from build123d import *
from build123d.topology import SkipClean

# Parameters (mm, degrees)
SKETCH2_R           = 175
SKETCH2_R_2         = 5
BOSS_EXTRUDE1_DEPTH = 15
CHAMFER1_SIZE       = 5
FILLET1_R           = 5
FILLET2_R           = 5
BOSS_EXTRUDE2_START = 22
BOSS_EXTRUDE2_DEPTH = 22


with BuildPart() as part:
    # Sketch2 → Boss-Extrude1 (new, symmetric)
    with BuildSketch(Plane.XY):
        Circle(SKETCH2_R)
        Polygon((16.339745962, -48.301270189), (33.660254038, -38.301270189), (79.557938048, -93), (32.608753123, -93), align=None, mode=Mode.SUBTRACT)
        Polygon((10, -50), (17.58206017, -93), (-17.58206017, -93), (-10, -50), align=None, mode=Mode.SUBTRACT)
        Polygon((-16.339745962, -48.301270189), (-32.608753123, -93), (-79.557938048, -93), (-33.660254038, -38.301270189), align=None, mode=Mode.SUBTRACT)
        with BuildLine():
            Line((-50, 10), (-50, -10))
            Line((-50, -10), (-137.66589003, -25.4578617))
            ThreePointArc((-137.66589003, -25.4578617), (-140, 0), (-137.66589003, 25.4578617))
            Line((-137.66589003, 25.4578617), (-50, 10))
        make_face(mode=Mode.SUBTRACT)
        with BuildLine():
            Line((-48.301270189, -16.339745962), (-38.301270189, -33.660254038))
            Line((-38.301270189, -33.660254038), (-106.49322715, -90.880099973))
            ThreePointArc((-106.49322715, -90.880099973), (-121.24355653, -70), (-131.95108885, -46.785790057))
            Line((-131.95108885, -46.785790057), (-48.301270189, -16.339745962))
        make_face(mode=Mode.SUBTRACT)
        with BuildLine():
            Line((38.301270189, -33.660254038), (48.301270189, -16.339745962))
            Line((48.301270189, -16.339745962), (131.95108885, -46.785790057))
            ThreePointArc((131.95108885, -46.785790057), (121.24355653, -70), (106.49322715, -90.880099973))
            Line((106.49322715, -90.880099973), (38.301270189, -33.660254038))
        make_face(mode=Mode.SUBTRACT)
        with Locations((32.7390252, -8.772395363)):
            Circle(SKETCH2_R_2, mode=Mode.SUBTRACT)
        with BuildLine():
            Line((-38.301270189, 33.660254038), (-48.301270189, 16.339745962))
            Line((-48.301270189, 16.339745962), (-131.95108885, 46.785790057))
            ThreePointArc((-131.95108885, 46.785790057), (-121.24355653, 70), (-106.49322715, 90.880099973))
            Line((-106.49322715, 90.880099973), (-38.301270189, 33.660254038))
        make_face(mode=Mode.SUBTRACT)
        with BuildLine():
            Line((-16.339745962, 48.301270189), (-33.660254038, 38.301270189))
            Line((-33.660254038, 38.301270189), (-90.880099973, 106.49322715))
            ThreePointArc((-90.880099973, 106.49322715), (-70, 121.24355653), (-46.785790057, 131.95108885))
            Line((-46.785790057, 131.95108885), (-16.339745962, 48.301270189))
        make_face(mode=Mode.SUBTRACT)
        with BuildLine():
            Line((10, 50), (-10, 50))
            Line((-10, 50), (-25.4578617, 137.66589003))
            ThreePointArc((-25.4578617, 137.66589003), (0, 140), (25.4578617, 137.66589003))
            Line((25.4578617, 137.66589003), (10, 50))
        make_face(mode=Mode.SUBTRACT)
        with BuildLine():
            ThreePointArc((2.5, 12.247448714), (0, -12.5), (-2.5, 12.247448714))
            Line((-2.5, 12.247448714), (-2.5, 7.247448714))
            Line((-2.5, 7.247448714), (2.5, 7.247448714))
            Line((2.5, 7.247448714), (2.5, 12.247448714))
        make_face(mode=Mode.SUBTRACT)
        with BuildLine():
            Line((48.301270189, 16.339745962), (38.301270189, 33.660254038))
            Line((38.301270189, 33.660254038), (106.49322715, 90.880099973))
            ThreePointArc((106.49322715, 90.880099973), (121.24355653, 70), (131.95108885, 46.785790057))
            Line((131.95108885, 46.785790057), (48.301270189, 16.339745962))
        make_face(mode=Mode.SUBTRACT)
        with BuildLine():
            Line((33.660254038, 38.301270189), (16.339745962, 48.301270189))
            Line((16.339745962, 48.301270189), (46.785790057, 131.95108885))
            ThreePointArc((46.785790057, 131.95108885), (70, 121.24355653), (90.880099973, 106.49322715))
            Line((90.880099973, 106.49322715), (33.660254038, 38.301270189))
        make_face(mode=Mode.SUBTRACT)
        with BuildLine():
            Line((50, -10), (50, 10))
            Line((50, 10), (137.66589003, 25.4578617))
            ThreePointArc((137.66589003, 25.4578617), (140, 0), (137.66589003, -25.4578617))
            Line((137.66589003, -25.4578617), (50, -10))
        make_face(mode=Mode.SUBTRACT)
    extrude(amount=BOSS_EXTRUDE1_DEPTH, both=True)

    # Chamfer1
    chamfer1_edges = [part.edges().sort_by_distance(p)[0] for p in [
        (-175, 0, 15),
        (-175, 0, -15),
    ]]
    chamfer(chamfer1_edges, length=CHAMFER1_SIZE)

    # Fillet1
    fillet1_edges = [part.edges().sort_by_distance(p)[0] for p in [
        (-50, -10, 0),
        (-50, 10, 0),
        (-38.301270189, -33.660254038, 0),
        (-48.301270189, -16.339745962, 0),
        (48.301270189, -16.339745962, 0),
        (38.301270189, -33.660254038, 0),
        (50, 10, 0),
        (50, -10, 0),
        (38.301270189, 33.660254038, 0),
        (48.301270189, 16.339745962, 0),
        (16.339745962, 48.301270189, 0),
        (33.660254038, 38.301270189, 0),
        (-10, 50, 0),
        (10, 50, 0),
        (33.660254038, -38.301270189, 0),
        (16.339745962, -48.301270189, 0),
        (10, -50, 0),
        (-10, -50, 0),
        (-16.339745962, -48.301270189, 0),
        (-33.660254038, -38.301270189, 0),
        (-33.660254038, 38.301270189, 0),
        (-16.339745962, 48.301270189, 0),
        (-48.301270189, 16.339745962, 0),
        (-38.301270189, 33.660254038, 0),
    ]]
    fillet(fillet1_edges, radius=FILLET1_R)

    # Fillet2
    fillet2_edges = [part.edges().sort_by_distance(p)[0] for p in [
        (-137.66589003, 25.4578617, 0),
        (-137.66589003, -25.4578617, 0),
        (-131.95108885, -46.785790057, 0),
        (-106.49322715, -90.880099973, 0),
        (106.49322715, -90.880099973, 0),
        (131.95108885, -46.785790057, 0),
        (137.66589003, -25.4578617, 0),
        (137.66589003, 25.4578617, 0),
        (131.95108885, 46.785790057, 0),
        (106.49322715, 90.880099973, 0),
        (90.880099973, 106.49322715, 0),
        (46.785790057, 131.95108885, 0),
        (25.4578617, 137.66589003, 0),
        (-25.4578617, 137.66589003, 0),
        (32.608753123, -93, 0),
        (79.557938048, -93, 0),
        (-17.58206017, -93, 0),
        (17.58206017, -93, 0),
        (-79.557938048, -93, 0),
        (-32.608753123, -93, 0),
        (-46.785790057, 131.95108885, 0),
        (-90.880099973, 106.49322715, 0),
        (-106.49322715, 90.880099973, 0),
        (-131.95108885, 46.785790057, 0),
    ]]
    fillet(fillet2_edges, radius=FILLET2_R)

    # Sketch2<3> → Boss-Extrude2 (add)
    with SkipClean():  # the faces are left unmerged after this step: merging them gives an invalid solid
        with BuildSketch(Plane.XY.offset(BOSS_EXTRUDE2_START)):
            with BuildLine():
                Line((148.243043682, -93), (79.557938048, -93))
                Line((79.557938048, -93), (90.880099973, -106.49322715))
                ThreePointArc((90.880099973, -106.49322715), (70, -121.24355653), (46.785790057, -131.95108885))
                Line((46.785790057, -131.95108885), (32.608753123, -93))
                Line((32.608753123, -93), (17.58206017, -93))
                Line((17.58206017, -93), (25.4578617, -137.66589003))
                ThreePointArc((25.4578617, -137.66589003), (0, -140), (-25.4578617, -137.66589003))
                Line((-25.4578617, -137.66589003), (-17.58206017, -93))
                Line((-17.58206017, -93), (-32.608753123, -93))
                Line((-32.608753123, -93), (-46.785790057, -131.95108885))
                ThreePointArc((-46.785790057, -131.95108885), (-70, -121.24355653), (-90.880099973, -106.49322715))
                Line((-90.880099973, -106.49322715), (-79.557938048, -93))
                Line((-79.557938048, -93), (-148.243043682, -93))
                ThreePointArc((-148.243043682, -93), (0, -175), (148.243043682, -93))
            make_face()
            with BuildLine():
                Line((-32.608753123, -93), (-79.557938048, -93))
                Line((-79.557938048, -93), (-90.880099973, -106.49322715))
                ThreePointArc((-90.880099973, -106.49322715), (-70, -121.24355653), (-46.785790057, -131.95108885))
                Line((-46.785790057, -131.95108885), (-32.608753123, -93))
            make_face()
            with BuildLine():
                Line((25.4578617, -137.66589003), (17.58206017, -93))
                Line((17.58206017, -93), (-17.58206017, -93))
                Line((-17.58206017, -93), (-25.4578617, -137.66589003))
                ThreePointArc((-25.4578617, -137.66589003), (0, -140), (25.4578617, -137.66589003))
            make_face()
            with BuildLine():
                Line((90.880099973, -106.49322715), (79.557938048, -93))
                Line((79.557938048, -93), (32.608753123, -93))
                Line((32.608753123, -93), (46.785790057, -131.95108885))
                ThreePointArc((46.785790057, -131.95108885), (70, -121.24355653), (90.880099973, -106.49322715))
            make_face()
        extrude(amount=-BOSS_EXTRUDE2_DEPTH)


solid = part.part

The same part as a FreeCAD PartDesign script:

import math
import FreeCAD as App
import Part
import Sketcher
from FreeCAD import Vector
Q = App.Units.Quantity


def edges_at(feature, points):
    """Names of the edges that pass closest to the given points."""
    edges = feature.Shape.Edges
    near = lambda p: min(range(len(edges)), key=lambda i: edges[i].distToShape(Part.Vertex(*p))[0])
    return sorted({f"Edge{near(p) + 1}" for p in points})

doc = App.newDocument("Part")
body = doc.addObject("PartDesign::Body", "Body")

# Sketch on XY plane
sketch1 = body.newObject("Sketcher::SketchObject", "Sketch")
sketch1.AttachmentSupport = (doc.getObject("XY_Plane"), [""])
sketch1.MapMode = "FlatFace"
sketch1.addGeometry([
    Part.Circle(Vector(0, 0, 0), Vector(0, 0, 1), 175),  # 0
    Part.LineSegment(Vector(-132, -47, 0), Vector(-48, -16, 0)),  # 1
    Part.LineSegment(Vector(-48, -16, 0), Vector(-38, -34, 0)),  # 2
    Part.LineSegment(Vector(-38, -34, 0), Vector(-106, -91, 0)),  # 3
    Part.ArcOfCircle(Part.Circle(Vector(0, 0, 0), Vector(0, 0, 1), 140), math.radians(-160), math.radians(-140)),  # 4
    Part.LineSegment(Vector(-34, -38, 0), Vector(-16, -48, 0)),  # 5
    Part.LineSegment(Vector(-16, -48, 0), Vector(-33, -93, 0)),  # 6
    Part.LineSegment(Vector(-33, -93, 0), Vector(-80, -93, 0)),  # 7
    Part.LineSegment(Vector(-80, -93, 0), Vector(-34, -38, 0)),  # 8
    Part.LineSegment(Vector(-10, -50, 0), Vector(10, -50, 0)),  # 9
    Part.LineSegment(Vector(10, -50, 0), Vector(18, -93, 0)),  # 10
    Part.LineSegment(Vector(18, -93, 0), Vector(-18, -93, 0)),  # 11
    Part.LineSegment(Vector(-18, -93, 0), Vector(-10, -50, 0)),  # 12
    Part.LineSegment(Vector(-138, 25, 0), Vector(-50, 10, 0)),  # 13
    Part.LineSegment(Vector(-50, 10, 0), Vector(-50, -10, 0)),  # 14
    Part.LineSegment(Vector(-50, -10, 0), Vector(-138, -25, 0)),  # 15
    Part.ArcOfCircle(Part.Circle(Vector(0, 0, 0), Vector(0, 0, 1), 140), math.radians(170), math.radians(190)),  # 16
    Part.LineSegment(Vector(2, 7, 0), Vector(2, 12, 0)),  # 17
    Part.ArcOfCircle(Part.Circle(Vector(0, 0, 0), Vector(0, 0, 1), 12), math.radians(102), math.radians(438)),  # 18
    Part.LineSegment(Vector(-2, 12, 0), Vector(-2, 7, 0)),  # 19
    Part.LineSegment(Vector(-2, 7, 0), Vector(2, 7, 0)),  # 20
    Part.LineSegment(Vector(33, -93, 0), Vector(16, -48, 0)),  # 21
    Part.LineSegment(Vector(16, -48, 0), Vector(34, -38, 0)),  # 22
    Part.LineSegment(Vector(34, -38, 0), Vector(80, -93, 0)),  # 23
    Part.LineSegment(Vector(80, -93, 0), Vector(33, -93, 0)),  # 24
    Part.LineSegment(Vector(106, -91, 0), Vector(38, -34, 0)),  # 25
    Part.LineSegment(Vector(38, -34, 0), Vector(48, -16, 0)),  # 26
    Part.LineSegment(Vector(48, -16, 0), Vector(132, -47, 0)),  # 27
    Part.ArcOfCircle(Part.Circle(Vector(0, 0, 0), Vector(0, 0, 1), 140), math.radians(-40), math.radians(-20)),  # 28
    Part.Circle(Vector(33, -9, 0), Vector(0, 0, 1), 5),  # 29
    Part.LineSegment(Vector(138, -25, 0), Vector(50, -10, 0)),  # 30
    Part.LineSegment(Vector(50, -10, 0), Vector(50, 10, 0)),  # 31
    Part.LineSegment(Vector(50, 10, 0), Vector(138, 25, 0)),  # 32
    Part.ArcOfCircle(Part.Circle(Vector(0, 0, 0), Vector(0, 0, 1), 140), math.radians(-10), math.radians(10)),  # 33
    Part.LineSegment(Vector(-106, 91, 0), Vector(-38, 34, 0)),  # 34
    Part.LineSegment(Vector(-38, 34, 0), Vector(-48, 16, 0)),  # 35
    Part.LineSegment(Vector(-48, 16, 0), Vector(-132, 47, 0)),  # 36
    Part.ArcOfCircle(Part.Circle(Vector(0, 0, 0), Vector(0, 0, 1), 140), math.radians(140), math.radians(160)),  # 37
    Part.LineSegment(Vector(-47, 132, 0), Vector(-16, 48, 0)),  # 38
    Part.LineSegment(Vector(-16, 48, 0), Vector(-34, 38, 0)),  # 39
    Part.LineSegment(Vector(-34, 38, 0), Vector(-91, 106, 0)),  # 40
    Part.ArcOfCircle(Part.Circle(Vector(0, 0, 0), Vector(0, 0, 1), 140), math.radians(110), math.radians(130)),  # 41
    Part.LineSegment(Vector(25, 138, 0), Vector(10, 50, 0)),  # 42
    Part.LineSegment(Vector(10, 50, 0), Vector(-10, 50, 0)),  # 43
    Part.LineSegment(Vector(-10, 50, 0), Vector(-25, 138, 0)),  # 44
    Part.ArcOfCircle(Part.Circle(Vector(0, 0, 0), Vector(0, 0, 1), 140), math.radians(80), math.radians(100)),  # 45
    Part.LineSegment(Vector(132, 47, 0), Vector(48, 16, 0)),  # 46
    Part.LineSegment(Vector(48, 16, 0), Vector(38, 34, 0)),  # 47
    Part.LineSegment(Vector(38, 34, 0), Vector(106, 91, 0)),  # 48
    Part.ArcOfCircle(Part.Circle(Vector(0, 0, 0), Vector(0, 0, 1), 140), math.radians(20), math.radians(40)),  # 49
    Part.LineSegment(Vector(91, 106, 0), Vector(34, 38, 0)),  # 50
    Part.LineSegment(Vector(34, 38, 0), Vector(16, 48, 0)),  # 51
    Part.LineSegment(Vector(16, 48, 0), Vector(47, 132, 0)),  # 52
    Part.ArcOfCircle(Part.Circle(Vector(0, 0, 0), Vector(0, 0, 1), 140), math.radians(50), math.radians(70)),  # 53
], False)
sketch1.addConstraint([
    Sketcher.Constraint("Coincident", 1, 2, 2, 1),
    Sketcher.Constraint("Coincident", 2, 2, 3, 1),
    Sketcher.Constraint("Coincident", 3, 2, 4, 2),
    Sketcher.Constraint("Coincident", 4, 1, 1, 1),
    Sketcher.Constraint("Coincident", 5, 2, 6, 1),
    Sketcher.Constraint("Coincident", 6, 2, 7, 1),
    Sketcher.Constraint("Coincident", 7, 2, 8, 1),
    Sketcher.Constraint("Coincident", 8, 2, 5, 1),
    Sketcher.Constraint("Coincident", 9, 2, 10, 1),
    Sketcher.Constraint("Coincident", 10, 2, 11, 1),
    Sketcher.Constraint("Coincident", 11, 2, 12, 1),
    Sketcher.Constraint("Coincident", 12, 2, 9, 1),
    Sketcher.Constraint("Coincident", 13, 2, 14, 1),
    Sketcher.Constraint("Coincident", 14, 2, 15, 1),
    Sketcher.Constraint("Coincident", 15, 2, 16, 2),
    Sketcher.Constraint("Coincident", 16, 1, 13, 1),
    Sketcher.Constraint("Coincident", 17, 2, 18, 2),
    Sketcher.Constraint("Coincident", 18, 1, 19, 1),
    Sketcher.Constraint("Coincident", 19, 2, 20, 1),
    Sketcher.Constraint("Coincident", 20, 2, 17, 1),
    Sketcher.Constraint("Coincident", 21, 2, 22, 1),
    Sketcher.Constraint("Coincident", 22, 2, 23, 1),
    Sketcher.Constraint("Coincident", 23, 2, 24, 1),
    Sketcher.Constraint("Coincident", 24, 2, 21, 1),
    Sketcher.Constraint("Coincident", 25, 2, 26, 1),
    Sketcher.Constraint("Coincident", 26, 2, 27, 1),
    Sketcher.Constraint("Coincident", 27, 2, 28, 2),
    Sketcher.Constraint("Coincident", 28, 1, 25, 1),
    Sketcher.Constraint("Coincident", 30, 2, 31, 1),
    Sketcher.Constraint("Coincident", 31, 2, 32, 1),
    Sketcher.Constraint("Coincident", 32, 2, 33, 2),
    Sketcher.Constraint("Coincident", 33, 1, 30, 1),
    Sketcher.Constraint("Coincident", 34, 2, 35, 1),
    Sketcher.Constraint("Coincident", 35, 2, 36, 1),
    Sketcher.Constraint("Coincident", 36, 2, 37, 2),
    Sketcher.Constraint("Coincident", 37, 1, 34, 1),
    Sketcher.Constraint("Coincident", 38, 2, 39, 1),
    Sketcher.Constraint("Coincident", 39, 2, 40, 1),
    Sketcher.Constraint("Coincident", 40, 2, 41, 2),
    Sketcher.Constraint("Coincident", 41, 1, 38, 1),
    Sketcher.Constraint("Coincident", 42, 2, 43, 1),
    Sketcher.Constraint("Coincident", 43, 2, 44, 1),
    Sketcher.Constraint("Coincident", 44, 2, 45, 2),
    Sketcher.Constraint("Coincident", 45, 1, 42, 1),
    Sketcher.Constraint("Coincident", 46, 2, 47, 1),
    Sketcher.Constraint("Coincident", 47, 2, 48, 1),
    Sketcher.Constraint("Coincident", 48, 2, 49, 2),
    Sketcher.Constraint("Coincident", 49, 1, 46, 1),
    Sketcher.Constraint("Coincident", 50, 2, 51, 1),
    Sketcher.Constraint("Coincident", 51, 2, 52, 1),
    Sketcher.Constraint("Coincident", 52, 2, 53, 2),
    Sketcher.Constraint("Coincident", 53, 1, 50, 1),
    Sketcher.Constraint("Horizontal", 7),
    Sketcher.Constraint("Horizontal", 9),
    Sketcher.Constraint("Horizontal", 11),
    Sketcher.Constraint("Vertical", 14),
    Sketcher.Constraint("Vertical", 17),
    Sketcher.Constraint("Vertical", 19),
    Sketcher.Constraint("Horizontal", 20),
    Sketcher.Constraint("Horizontal", 24),
    Sketcher.Constraint("Vertical", 31),
    Sketcher.Constraint("Horizontal", 43),
    Sketcher.Constraint("Coincident", 0, 3, -1, 1),
    Sketcher.Constraint("Coincident", 4, 3, -1, 1),
    Sketcher.Constraint("Coincident", 16, 3, -1, 1),
    Sketcher.Constraint("Coincident", 18, 3, -1, 1),
    Sketcher.Constraint("Coincident", 28, 3, -1, 1),
    Sketcher.Constraint("Coincident", 33, 3, -1, 1),
    Sketcher.Constraint("Coincident", 37, 3, -1, 1),
    Sketcher.Constraint("Coincident", 41, 3, -1, 1),
    Sketcher.Constraint("Coincident", 45, 3, -1, 1),
    Sketcher.Constraint("Coincident", 49, 3, -1, 1),
    Sketcher.Constraint("Coincident", 53, 3, -1, 1),
    Sketcher.Constraint("Equal", 4, 16),
    Sketcher.Constraint("Equal", 16, 28),
    Sketcher.Constraint("Equal", 28, 33),
    Sketcher.Constraint("Equal", 33, 37),
    Sketcher.Constraint("Equal", 37, 41),
    Sketcher.Constraint("Equal", 41, 45),
    Sketcher.Constraint("Equal", 45, 49),
    Sketcher.Constraint("Equal", 49, 53),
    Sketcher.Constraint("Symmetric", 13, 2, 30, 2, -1, 1),
    Sketcher.Constraint("Symmetric", 25, 2, 34, 2, -1, 1),
    Sketcher.Constraint("Symmetric", 26, 2, 35, 2, -1, 1),
    Sketcher.Constraint("Symmetric", 21, 2, 38, 2, -1, 1),
    Sketcher.Constraint("Symmetric", 22, 2, 39, 2, -1, 1),
    Sketcher.Constraint("Symmetric", 12, 2, 42, 2, -1, 1),
    Sketcher.Constraint("Symmetric", 1, 2, 46, 2, -1, 1),
    Sketcher.Constraint("Symmetric", 2, 2, 47, 2, -1, 1),
    Sketcher.Constraint("Symmetric", 8, 2, 50, 2, -1, 1),
    Sketcher.Constraint("Symmetric", 5, 2, 51, 2, -1, 1),
    Sketcher.Constraint("Symmetric", 5, 2, 21, 2, -2),
    Sketcher.Constraint("Symmetric", 8, 2, 22, 2, -2),
    Sketcher.Constraint("Symmetric", 7, 2, 23, 2, -2),
    Sketcher.Constraint("Symmetric", 2, 2, 25, 2, -2),
    Sketcher.Constraint("Symmetric", 1, 2, 26, 2, -2),
    Sketcher.Constraint("Perpendicular", 12, 13),
    Sketcher.Constraint("Perpendicular", 10, 15),
    Sketcher.Constraint("Perpendicular", 1, 21),
    Sketcher.Constraint("Perpendicular", 2, 22),
    Sketcher.Constraint("Perpendicular", 3, 23),
    Sketcher.Constraint("Perpendicular", 8, 25),
    Sketcher.Constraint("Perpendicular", 6, 27),
    Sketcher.Constraint("Parallel", 13, 30),
    Sketcher.Constraint("Parallel", 15, 32),
    Sketcher.Constraint("Parallel", 25, 34),
    Sketcher.Constraint("Parallel", 27, 36),
    Sketcher.Constraint("Parallel", 21, 38),
    Sketcher.Constraint("Parallel", 23, 40),
    Sketcher.Constraint("Perpendicular", 30, 42),
    Sketcher.Constraint("Perpendicular", 32, 44),
    Sketcher.Constraint("Perpendicular", 38, 46),
    Sketcher.Constraint("Perpendicular", 40, 48),
    Sketcher.Constraint("Perpendicular", 34, 50),
    Sketcher.Constraint("Perpendicular", 36, 52),
    Sketcher.Constraint("Horizontal", 7, 2, 10, 2),
    Sketcher.Constraint("Horizontal", 17, 2, 18, 1),
    Sketcher.Constraint("Horizontal", 4, 1, 27, 2),
    Sketcher.Constraint("Horizontal", 14, 2, 30, 2),
    Sketcher.Constraint("Horizontal", 13, 2, 31, 2),
    Sketcher.Constraint("Horizontal", 16, 1, 32, 2),
    Sketcher.Constraint("Horizontal", 44, 2, 45, 1),
    Sketcher.Constraint("Vertical", 9, 2, 42, 2),
    Sketcher.Constraint("Equal", 43, 14),
    Sketcher.Constraint("Equal", 20, 17),
    Sketcher.Constraint("Equal", 1, 3),
    Sketcher.Constraint("Equal", 2, 5),
    Sketcher.Constraint("Equal", 3, 13),
    Sketcher.Constraint("Equal", 36, 38),
    Sketcher.Constraint("Equal", 38, 40),
    Sketcher.Constraint("Equal", 40, 42),
    Sketcher.Constraint("Diameter", 0, 350.0),
    Sketcher.Constraint("Diameter", 29, 10.0),
    Sketcher.Constraint("Radius", 4, 140.0),
    Sketcher.Constraint("Radius", 18, 12.5),
    Sketcher.Constraint("DistanceX", 9, 1, 9, 2, 20.0),
    Sketcher.Constraint("DistanceX", 20, 1, 20, 2, 5.0),
    Sketcher.Constraint("Angle", 1, Q("20 deg")),
    Sketcher.Constraint("Angle", 2, Q("-60 deg")),
    Sketcher.Constraint("Angle", 3, Q("-140 deg")),
    Sketcher.Constraint("Angle", 10, Q("-80 deg")),
    Sketcher.Constraint("Distance", 2, 20.0),
    Sketcher.Constraint("DistanceY", 6, 2, -1, 1, 93.0),
    Sketcher.Constraint("DistanceY", 9, 2, -1, 1, 50.0),
    Sketcher.Constraint("DistanceX", -1, 1, 29, 3, 32.739025),
    Sketcher.Constraint("DistanceY", 29, 3, -1, 1, 8.772395),
])
pad1 = body.newObject("PartDesign::Pad", "Pad")
pad1.Profile = sketch1
pad1.Length = 30
pad1.Midplane = True
doc.recompute()

chamfer = body.newObject("PartDesign::Chamfer", "Chamfer")
chamfer.Base = (pad1, edges_at(pad1, [(-175, 0, 15), (-175, 0, -15)]))
chamfer.Size = 5
doc.recompute()

fillet = body.newObject("PartDesign::Fillet", "Fillet")
fillet.Base = (chamfer, edges_at(chamfer, [
    (-50, -10, 0),
    (-50, 10, 0),
    (-38.301, -33.66, 0),
    (-48.301, -16.34, 0),
    (48.301, -16.34, 0),
    (38.301, -33.66, 0),
    (50, 10, 0),
    (50, -10, 0),
    (38.301, 33.66, 0),
    (48.301, 16.34, 0),
    (16.34, 48.301, 0),
    (33.66, 38.301, 0),
    (-10, 50, 0),
    (10, 50, 0),
    (33.66, -38.301, 0),
    (16.34, -48.301, 0),
    (10, -50, 0),
    (-10, -50, 0),
    (-16.34, -48.301, 0),
    (-33.66, -38.301, 0),
    (-33.66, 38.301, 0),
    (-16.34, 48.301, 0),
    (-48.301, 16.34, 0),
    (-38.301, 33.66, 0),
]))
fillet.Radius = 5
doc.recompute()

fillet2 = body.newObject("PartDesign::Fillet", "Fillet001")
fillet2.Base = (fillet, edges_at(fillet, [
    (-137.666, 25.458, 0),
    (-137.666, -25.458, 0),
    (-131.951, -46.786, 0),
    (-106.493, -90.88, 0),
    (106.493, -90.88, 0),
    (131.951, -46.786, 0),
    (137.666, -25.458, 0),
    (137.666, 25.458, 0),
    (131.951, 46.786, 0),
    (106.493, 90.88, 0),
    (90.88, 106.493, 0),
    (46.786, 131.951, 0),
    (25.458, 137.666, 0),
    (-25.458, 137.666, 0),
    (32.609, -93, 0),
    (79.558, -93, 0),
    (-17.582, -93, 0),
    (17.582, -93, 0),
    (-79.558, -93, 0),
    (-32.609, -93, 0),
    (-46.786, 131.951, 0),
    (-90.88, 106.493, 0),
    (-106.493, 90.88, 0),
    (-131.951, 46.786, 0),
]))
fillet2.Radius = 5

# Sketch on XY plane
sketch2 = body.newObject("Sketcher::SketchObject", "Sketch001")
sketch2.AttachmentSupport = (doc.getObject("XY_Plane"), [""])
sketch2.MapMode = "FlatFace"
sketch2.AttachmentOffset = App.Placement(Vector(0, 0, 22), App.Rotation())
sketch2.addGeometry([
    Part.LineSegment(Vector(148, -93, 0), Vector(80, -93, 0)),  # 0
    Part.LineSegment(Vector(80, -93, 0), Vector(91, -106, 0)),  # 1
    Part.ArcOfCircle(Part.Circle(Vector(0, 0, 0), Vector(0, 0, 1), 140), math.radians(-70), math.radians(-50)),  # 2
    Part.LineSegment(Vector(47, -132, 0), Vector(33, -93, 0)),  # 3
    Part.LineSegment(Vector(33, -93, 0), Vector(18, -93, 0)),  # 4
    Part.LineSegment(Vector(18, -93, 0), Vector(25, -138, 0)),  # 5
    Part.ArcOfCircle(Part.Circle(Vector(0, 0, 0), Vector(0, 0, 1), 140), math.radians(-100), math.radians(-80)),  # 6
    Part.LineSegment(Vector(-25, -138, 0), Vector(-18, -93, 0)),  # 7
    Part.LineSegment(Vector(-18, -93, 0), Vector(-33, -93, 0)),  # 8
    Part.LineSegment(Vector(-33, -93, 0), Vector(-47, -132, 0)),  # 9
    Part.ArcOfCircle(Part.Circle(Vector(0, 0, 0), Vector(0, 0, 1), 140), math.radians(-130), math.radians(-110)),  # 10
    Part.LineSegment(Vector(-91, -106, 0), Vector(-80, -93, 0)),  # 11
    Part.LineSegment(Vector(-80, -93, 0), Vector(-148, -93, 0)),  # 12
    Part.ArcOfCircle(Part.Circle(Vector(0, 0, 0), Vector(0, 0, 1), 175), math.radians(-148), math.radians(-32)),  # 13
    Part.LineSegment(Vector(-33, -93, 0), Vector(-80, -93, 0)),  # 14
    Part.LineSegment(Vector(-80, -93, 0), Vector(-91, -106, 0)),  # 15
    Part.ArcOfCircle(Part.Circle(Vector(0, 0, 0), Vector(0, 0, 1), 140), math.radians(-130), math.radians(-110)),  # 16
    Part.LineSegment(Vector(-47, -132, 0), Vector(-33, -93, 0)),  # 17
    Part.LineSegment(Vector(25, -138, 0), Vector(18, -93, 0)),  # 18
    Part.LineSegment(Vector(18, -93, 0), Vector(-18, -93, 0)),  # 19
    Part.LineSegment(Vector(-18, -93, 0), Vector(-25, -138, 0)),  # 20
    Part.ArcOfCircle(Part.Circle(Vector(0, 0, 0), Vector(0, 0, 1), 140), math.radians(-100), math.radians(-80)),  # 21
    Part.LineSegment(Vector(91, -106, 0), Vector(80, -93, 0)),  # 22
    Part.LineSegment(Vector(80, -93, 0), Vector(33, -93, 0)),  # 23
    Part.LineSegment(Vector(33, -93, 0), Vector(47, -132, 0)),  # 24
    Part.ArcOfCircle(Part.Circle(Vector(0, 0, 0), Vector(0, 0, 1), 140), math.radians(-70), math.radians(-50)),  # 25
], False)
sketch2.addConstraint([
    Sketcher.Constraint("Coincident", 0, 2, 1, 1),
    Sketcher.Constraint("Coincident", 1, 2, 2, 2),
    Sketcher.Constraint("Coincident", 2, 1, 3, 1),
    Sketcher.Constraint("Coincident", 3, 2, 4, 1),
    Sketcher.Constraint("Coincident", 4, 2, 5, 1),
    Sketcher.Constraint("Coincident", 5, 2, 6, 2),
    Sketcher.Constraint("Coincident", 6, 1, 7, 1),
    Sketcher.Constraint("Coincident", 7, 2, 8, 1),
    Sketcher.Constraint("Coincident", 8, 2, 9, 1),
    Sketcher.Constraint("Coincident", 9, 2, 10, 2),
    Sketcher.Constraint("Coincident", 10, 1, 11, 1),
    Sketcher.Constraint("Coincident", 11, 2, 12, 1),
    Sketcher.Constraint("Coincident", 12, 2, 13, 1),
    Sketcher.Constraint("Coincident", 13, 2, 0, 1),
    Sketcher.Constraint("Coincident", 14, 2, 15, 1),
    Sketcher.Constraint("Coincident", 15, 2, 16, 1),
    Sketcher.Constraint("Coincident", 16, 2, 17, 1),
    Sketcher.Constraint("Coincident", 17, 2, 14, 1),
    Sketcher.Constraint("Coincident", 18, 2, 19, 1),
    Sketcher.Constraint("Coincident", 19, 2, 20, 1),
    Sketcher.Constraint("Coincident", 20, 2, 21, 1),
    Sketcher.Constraint("Coincident", 21, 2, 18, 1),
    Sketcher.Constraint("Coincident", 22, 2, 23, 1),
    Sketcher.Constraint("Coincident", 23, 2, 24, 1),
    Sketcher.Constraint("Coincident", 24, 2, 25, 1),
    Sketcher.Constraint("Coincident", 25, 2, 22, 1),
    Sketcher.Constraint("Horizontal", 0),
    Sketcher.Constraint("Horizontal", 4),
    Sketcher.Constraint("Horizontal", 8),
    Sketcher.Constraint("Horizontal", 12),
    Sketcher.Constraint("Horizontal", 14),
    Sketcher.Constraint("Horizontal", 19),
    Sketcher.Constraint("Horizontal", 23),
    Sketcher.Constraint("Coincident", 2, 3, -1, 1),
    Sketcher.Constraint("Coincident", 6, 3, -1, 1),
    Sketcher.Constraint("Coincident", 10, 3, -1, 1),
    Sketcher.Constraint("Coincident", 13, 3, -1, 1),
    Sketcher.Constraint("Coincident", 16, 3, -1, 1),
    Sketcher.Constraint("Coincident", 21, 3, -1, 1),
    Sketcher.Constraint("Coincident", 25, 3, -1, 1),
    Sketcher.Constraint("Coincident", 14, 2, 11, 2),
    Sketcher.Constraint("Coincident", 15, 2, 10, 1),
    Sketcher.Constraint("Coincident", 17, 2, 8, 2),
    Sketcher.Constraint("Coincident", 18, 2, 4, 2),
    Sketcher.Constraint("Coincident", 19, 2, 7, 2),
    Sketcher.Constraint("Coincident", 20, 2, 6, 1),
    Sketcher.Constraint("Coincident", 22, 2, 0, 2),
    Sketcher.Constraint("Coincident", 23, 2, 3, 2),
    Sketcher.Constraint("Coincident", 24, 2, 2, 1),
    Sketcher.Constraint("Equal", 2, 6),
    Sketcher.Constraint("Equal", 6, 10),
    Sketcher.Constraint("Parallel", 9, 17),
    Sketcher.Constraint("Parallel", 5, 18),
    Sketcher.Constraint("Parallel", 1, 22),
    Sketcher.Constraint("Horizontal", 5, 2, 6, 1),
    Sketcher.Constraint("Horizontal", 2, 1, 9, 2),
    Sketcher.Constraint("Horizontal", 1, 2, 10, 1),
    Sketcher.Constraint("Equal", 4, 8),
    Sketcher.Constraint("Equal", 0, 12),
    Sketcher.Constraint("Equal", 14, 23),
    Sketcher.Constraint("Radius", 2, 140.0),
    Sketcher.Constraint("Radius", 13, 175.0),
    Sketcher.Constraint("Angle", 1, Q("-50 deg")),
    Sketcher.Constraint("Angle", 3, Q("110 deg")),
    Sketcher.Constraint("Angle", 5, Q("-80 deg")),
    Sketcher.Constraint("DistanceY", 0, 2, -1, 1, 93.0),
    Sketcher.Constraint("DistanceX", 19, 2, 19, 1, 35.16412),
    Sketcher.Constraint("DistanceX", -1, 1, 1, 2, 90.8801),
    Sketcher.Constraint("DistanceY", 6, 1, 9, 2, 5.714801),
])
pad2 = body.newObject("PartDesign::Pad", "Pad001")
pad2.Profile = sketch2
pad2.Length = 22
pad2.Reversed = True

doc.recompute()
